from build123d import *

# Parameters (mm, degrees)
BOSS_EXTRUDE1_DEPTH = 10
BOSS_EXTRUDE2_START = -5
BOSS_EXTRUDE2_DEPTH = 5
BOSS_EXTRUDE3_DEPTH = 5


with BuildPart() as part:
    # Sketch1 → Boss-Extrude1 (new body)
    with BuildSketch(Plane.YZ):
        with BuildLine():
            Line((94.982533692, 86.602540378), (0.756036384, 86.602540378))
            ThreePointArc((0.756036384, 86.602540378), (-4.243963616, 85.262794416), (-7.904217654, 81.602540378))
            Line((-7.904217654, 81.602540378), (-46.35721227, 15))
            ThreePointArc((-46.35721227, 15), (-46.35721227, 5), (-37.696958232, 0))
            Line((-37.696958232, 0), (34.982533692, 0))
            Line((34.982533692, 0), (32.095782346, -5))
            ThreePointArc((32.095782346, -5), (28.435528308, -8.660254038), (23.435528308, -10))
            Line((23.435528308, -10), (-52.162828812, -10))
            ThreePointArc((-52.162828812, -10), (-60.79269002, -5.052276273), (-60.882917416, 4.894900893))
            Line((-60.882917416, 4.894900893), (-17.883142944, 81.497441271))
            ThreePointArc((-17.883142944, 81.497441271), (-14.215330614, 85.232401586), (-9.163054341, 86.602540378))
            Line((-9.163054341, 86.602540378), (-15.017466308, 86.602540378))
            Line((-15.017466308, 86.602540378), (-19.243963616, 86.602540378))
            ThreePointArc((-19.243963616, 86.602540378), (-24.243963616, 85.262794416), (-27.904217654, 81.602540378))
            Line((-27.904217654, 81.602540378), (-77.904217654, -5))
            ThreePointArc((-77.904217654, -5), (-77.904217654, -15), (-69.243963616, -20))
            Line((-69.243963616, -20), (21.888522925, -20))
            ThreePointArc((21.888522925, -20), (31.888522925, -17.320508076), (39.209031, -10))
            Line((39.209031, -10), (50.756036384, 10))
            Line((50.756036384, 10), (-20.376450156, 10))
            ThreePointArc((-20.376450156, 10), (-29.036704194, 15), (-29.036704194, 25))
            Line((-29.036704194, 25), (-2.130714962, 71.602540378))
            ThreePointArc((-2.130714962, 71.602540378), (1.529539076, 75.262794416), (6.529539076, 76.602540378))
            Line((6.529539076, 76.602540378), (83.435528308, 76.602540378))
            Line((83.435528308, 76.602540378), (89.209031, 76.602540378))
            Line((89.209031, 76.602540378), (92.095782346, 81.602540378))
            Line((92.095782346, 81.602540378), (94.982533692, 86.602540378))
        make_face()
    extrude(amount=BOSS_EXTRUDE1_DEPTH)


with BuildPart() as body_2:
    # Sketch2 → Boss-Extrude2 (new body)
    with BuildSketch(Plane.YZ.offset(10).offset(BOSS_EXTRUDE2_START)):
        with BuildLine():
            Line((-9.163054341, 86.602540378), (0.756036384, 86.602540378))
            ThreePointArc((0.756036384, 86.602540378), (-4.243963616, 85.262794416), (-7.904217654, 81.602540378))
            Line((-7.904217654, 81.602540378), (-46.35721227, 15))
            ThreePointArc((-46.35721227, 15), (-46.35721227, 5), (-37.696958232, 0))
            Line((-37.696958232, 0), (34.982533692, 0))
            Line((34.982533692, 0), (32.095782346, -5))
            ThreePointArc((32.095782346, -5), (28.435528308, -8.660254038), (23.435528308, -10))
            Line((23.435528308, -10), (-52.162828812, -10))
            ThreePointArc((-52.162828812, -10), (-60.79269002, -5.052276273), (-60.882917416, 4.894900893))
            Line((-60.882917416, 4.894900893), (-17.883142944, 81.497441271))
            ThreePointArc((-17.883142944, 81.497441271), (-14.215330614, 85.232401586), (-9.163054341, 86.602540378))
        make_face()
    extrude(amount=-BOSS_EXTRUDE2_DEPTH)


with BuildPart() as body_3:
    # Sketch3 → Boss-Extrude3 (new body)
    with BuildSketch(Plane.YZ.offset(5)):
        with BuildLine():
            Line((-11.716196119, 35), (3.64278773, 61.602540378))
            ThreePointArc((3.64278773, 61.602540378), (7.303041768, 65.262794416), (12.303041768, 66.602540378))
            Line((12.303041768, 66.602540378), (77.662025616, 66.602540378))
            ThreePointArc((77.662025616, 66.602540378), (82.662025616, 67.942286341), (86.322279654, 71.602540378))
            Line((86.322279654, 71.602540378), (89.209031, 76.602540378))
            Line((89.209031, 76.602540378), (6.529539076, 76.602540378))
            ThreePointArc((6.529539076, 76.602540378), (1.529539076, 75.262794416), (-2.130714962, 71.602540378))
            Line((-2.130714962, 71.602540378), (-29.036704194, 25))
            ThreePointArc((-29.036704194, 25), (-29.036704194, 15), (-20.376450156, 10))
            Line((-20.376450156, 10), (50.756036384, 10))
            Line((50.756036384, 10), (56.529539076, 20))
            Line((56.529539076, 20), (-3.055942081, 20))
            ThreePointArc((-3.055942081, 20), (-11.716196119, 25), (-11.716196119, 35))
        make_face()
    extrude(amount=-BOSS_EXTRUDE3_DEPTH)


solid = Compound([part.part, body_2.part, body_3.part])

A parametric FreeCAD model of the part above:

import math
import FreeCAD as App
import Part
import Sketcher
Q = App.Units.Quantity

doc = App.newDocument("Part")
params = doc.addObject("Spreadsheet::Sheet", "Params")
for row, (alias, value) in enumerate([
    ("sketch1_radius", "10 mm"),
    ("sketch1_length", "100 mm"),
    ("pad1_length", "10 mm"),
    ("sketch2_radius", "10 mm"),
    ("pad2_length", "5 mm"),
    ("sketch3_radius", "10 mm"),
    ("pad3_length", "5 mm"),
], start=1):
    params.set(f"A{row}", alias)
    params.set(f"B{row}", "=" + value)
    params.setAlias(f"B{row}", alias)

body = doc.addObject("PartDesign::Body", "Body")

# Sketch on YZ plane
sketch1 = doc.addObject("Sketcher::SketchObject", "Sketch")
body.addObject(sketch1)
sketch1.AttachmentSupport = (doc.YZ_Plane, [""])
sketch1.MapMode = "FlatFace"
sketch1.addGeometry([
    Part.LineSegment(App.Vector(95, 87, 0), App.Vector(1, 87, 0)),  # 0
    Part.ArcOfCircle(Part.Circle(App.Vector(1, 77, 0), App.Vector(0, 0, 1), 10), math.radians(90), math.radians(150)),  # 1
    Part.LineSegment(App.Vector(-8, 82, 0), App.Vector(-46, 15, 0)),  # 2
    Part.ArcOfCircle(Part.Circle(App.Vector(-38, 10, 0), App.Vector(0, 0, 1), 10), math.radians(150), math.radians(270)),  # 3
    Part.LineSegment(App.Vector(-38, 0, 0), App.Vector(35, 0, 0)),  # 4
    Part.LineSegment(App.Vector(35, 0, 0), App.Vector(32, -5, 0)),  # 5
    Part.ArcOfCircle(Part.Circle(App.Vector(23, 0, 0), App.Vector(0, 0, 1), 10), math.radians(-90), math.radians(-30)),  # 6
    Part.LineSegment(App.Vector(23, -10, 0), App.Vector(-52, -10, 0)),  # 7
    Part.ArcOfCircle(Part.Circle(App.Vector(-52, 0, 0), App.Vector(0, 0, 1), 10), math.radians(151), math.radians(270)),  # 8
    Part.LineSegment(App.Vector(-61, 5, 0), App.Vector(-18, 81, 0)),  # 9
    Part.ArcOfCircle(Part.Circle(App.Vector(-9, 77, 0), App.Vector(0, 0, 1), 10), math.radians(90), math.radians(151)),  # 10
    Part.LineSegment(App.Vector(-9, 87, 0), App.Vector(-19, 87, 0)),  # 11
    Part.ArcOfCircle(Part.Circle(App.Vector(-19, 77, 0), App.Vector(0, 0, 1), 10), math.radians(90), math.radians(150)),  # 12
    Part.LineSegment(App.Vector(-28, 82, 0), App.Vector(-78, -5, 0)),  # 13
    Part.ArcOfCircle(Part.Circle(App.Vector(-69, -10, 0), App.Vector(0, 0, 1), 10), math.radians(150), math.radians(270)),  # 14
    Part.LineSegment(App.Vector(-69, -20, 0), App.Vector(22, -20, 0)),  # 15
    Part.ArcOfCircle(Part.Circle(App.Vector(22, 0, 0), App.Vector(0, 0, 1), 20), math.radians(-90), math.radians(-30)),  # 16
    Part.LineSegment(App.Vector(39, -10, 0), App.Vector(51, 10, 0)),  # 17
    Part.LineSegment(App.Vector(51, 10, 0), App.Vector(-20, 10, 0)),  # 18
    Part.ArcOfCircle(Part.Circle(App.Vector(-20, 20, 0), App.Vector(0, 0, 1), 10), math.radians(150), math.radians(270)),  # 19
    Part.LineSegment(App.Vector(-29, 25, 0), App.Vector(-2, 72, 0)),  # 20
    Part.ArcOfCircle(Part.Circle(App.Vector(7, 67, 0), App.Vector(0, 0, 1), 10), math.radians(90), math.radians(150)),  # 21
    Part.LineSegment(App.Vector(7, 77, 0), App.Vector(89, 77, 0)),  # 22
    Part.LineSegment(App.Vector(89, 77, 0), App.Vector(95, 87, 0)),  # 23
], False)
sketch1.addConstraint([
    Sketcher.Constraint("Tangent", 0, 2, 1, 1),
    Sketcher.Constraint("Tangent", 1, 2, 2, 1),
    Sketcher.Constraint("Tangent", 2, 2, 3, 1),
    Sketcher.Constraint("Tangent", 3, 2, 4, 1),
    Sketcher.Constraint("Coincident", 4, 2, 5, 1),
    Sketcher.Constraint("Tangent", 5, 2, 6, 2),
    Sketcher.Constraint("Tangent", 6, 1, 7, 1),
    Sketcher.Constraint("Tangent", 7, 2, 8, 2),
    Sketcher.Constraint("Tangent", 8, 1, 9, 1),
    Sketcher.Constraint("Tangent", 9, 2, 10, 2),
    Sketcher.Constraint("Tangent", 10, 1, 11, 1),
    Sketcher.Constraint("Tangent", 11, 2, 12, 1),
    Sketcher.Constraint("Tangent", 12, 2, 13, 1),
    Sketcher.Constraint("Tangent", 13, 2, 14, 1),
    Sketcher.Constraint("Tangent", 14, 2, 15, 1),
    Sketcher.Constraint("Tangent", 15, 2, 16, 1),
    Sketcher.Constraint("Tangent", 16, 2, 17, 1),
    Sketcher.Constraint("Coincident", 17, 2, 18, 1),
    Sketcher.Constraint("Tangent", 18, 2, 19, 2),
    Sketcher.Constraint("Tangent", 19, 1, 20, 1),
    Sketcher.Constraint("Tangent", 20, 2, 21, 2),
    Sketcher.Constraint("Tangent", 21, 1, 22, 1),
    Sketcher.Constraint("Coincident", 22, 2, 23, 1),
    Sketcher.Constraint("Coincident", 23, 2, 0, 1),
    Sketcher.Constraint("Horizontal", 0),
    Sketcher.Constraint("Horizontal", 4),
    Sketcher.Constraint("Horizontal", 7),
    Sketcher.Constraint("Horizontal", 11),
    Sketcher.Constraint("Horizontal", 15),
    Sketcher.Constraint("Horizontal", 18),
    Sketcher.Constraint("Horizontal", 22),
    Sketcher.Constraint("Equal", 1, 3),
    Sketcher.Constraint("Equal", 3, 6),
    Sketcher.Constraint("Equal", 6, 8),
    Sketcher.Constraint("Equal", 8, 10),
    Sketcher.Constraint("Equal", 10, 12),
    Sketcher.Constraint("Equal", 12, 14),
    Sketcher.Constraint("Equal", 14, 19),
    Sketcher.Constraint("Equal", 19, 21),
    Sketcher.Constraint("PointOnObject", 6, 3, -1),
    Sketcher.Constraint("PointOnObject", 16, 3, -1),
    Sketcher.Constraint("PointOnObject", 3, 2, -1),
    Sketcher.Constraint("Parallel", 2, 5),
    Sketcher.Constraint("Parallel", 5, 13),
    Sketcher.Constraint("Parallel", 13, 17),
    Sketcher.Constraint("Parallel", 17, 20),
    Sketcher.Constraint("Parallel", 20, 23),
    Sketcher.Constraint("Horizontal", 1, 3, 10, 3),
    Sketcher.Constraint("Horizontal", 14, 3, 6, 1),
    Sketcher.Constraint("Horizontal", 5, 2, 13, 2),
    Sketcher.Constraint("Horizontal", 3, 3, 17, 2),
    Sketcher.Constraint("Horizontal", 12, 3, 21, 1),
    Sketcher.Constraint("Radius", 1, Q("10 mm")),
    Sketcher.Constraint("Distance", 13, Q("100 mm")),
    Sketcher.Constraint("DistanceX", 12, 3, 1, 3, Q("20 mm")),
    Sketcher.Constraint("DistanceX", 4, 1, 4, 2, Q("72.679492 mm")),
    Sketcher.Constraint("DistanceX", 11, 2, 11, 1, Q("10.080909 mm")),
    Sketcher.Constraint("DistanceX", 22, 1, 22, 2, Q("82.679492 mm")),
    Sketcher.Constraint("DistanceY", -1, 1, 8, 1, Q("4.894901 mm")),
    Sketcher.Constraint("DistanceX", 0, 2, 0, 1, Q("94.226497 mm")),
    Sketcher.Constraint("DistanceX", 15, 1, 15, 2, Q("91.132487 mm")),
    Sketcher.Constraint("DistanceX", 3, 3, -1, 1, Q("37.696958 mm")),
])
sketch1.setExpression("Constraints[52]", "Params.sketch1_radius")
sketch1.setExpression("Constraints[53]", "Params.sketch1_length")
pad1 = doc.addObject("PartDesign::Pad", "Pad")
body.addObject(pad1)
pad1.Profile = sketch1
pad1.setExpression("Length", "Params.pad1_length")
body2 = doc.addObject("PartDesign::Body", "Body001")

# Sketch on YZ plane
sketch2 = doc.addObject("Sketcher::SketchObject", "Sketch001")
body2.addObject(sketch2)
sketch2.AttachmentSupport = (doc.getObject("YZ_Plane001"), [""])
sketch2.MapMode = "FlatFace"
sketch2.AttachmentOffset = App.Placement(App.Vector(0, 0, 5), App.Rotation())
sketch2.addGeometry([
    Part.LineSegment(App.Vector(1, 87, 0), App.Vector(-9, 87, 0)),  # 0
    Part.ArcOfCircle(Part.Circle(App.Vector(-9, 77, 0), App.Vector(0, 0, 1), 10), math.radians(90), math.radians(151)),  # 1
    Part.LineSegment(App.Vector(-18, 81, 0), App.Vector(-61, 5, 0)),  # 2
    Part.ArcOfCircle(Part.Circle(App.Vector(-52, 0, 0), App.Vector(0, 0, 1), 10), math.radians(151), math.radians(270)),  # 3
    Part.LineSegment(App.Vector(-52, -10, 0), App.Vector(23, -10, 0)),  # 4
    Part.ArcOfCircle(Part.Circle(App.Vector(23, 0, 0), App.Vector(0, 0, 1), 10), math.radians(-90), math.radians(-30)),  # 5
    Part.LineSegment(App.Vector(32, -5, 0), App.Vector(35, 0, 0)),  # 6
    Part.LineSegment(App.Vector(35, 0, 0), App.Vector(-38, 0, 0)),  # 7
    Part.ArcOfCircle(Part.Circle(App.Vector(-38, 10, 0), App.Vector(0, 0, 1), 10), math.radians(150), math.radians(270)),  # 8
    Part.LineSegment(App.Vector(-46, 15, 0), App.Vector(-8, 82, 0)),  # 9
    Part.ArcOfCircle(Part.Circle(App.Vector(1, 77, 0), App.Vector(0, 0, 1), 10), math.radians(90), math.radians(150)),  # 10
], False)
sketch2.addConstraint([
    Sketcher.Constraint("Tangent", 0, 2, 1, 1),
    Sketcher.Constraint("Tangent", 1, 2, 2, 1),
    Sketcher.Constraint("Tangent", 2, 2, 3, 1),
    Sketcher.Constraint("Tangent", 3, 2, 4, 1),
    Sketcher.Constraint("Tangent", 4, 2, 5, 1),
    Sketcher.Constraint("Tangent", 5, 2, 6, 1),
    Sketcher.Constraint("Coincident", 6, 2, 7, 1),
    Sketcher.Constraint("Tangent", 7, 2, 8, 2),
    Sketcher.Constraint("Tangent", 8, 1, 9, 1),
    Sketcher.Constraint("Tangent", 9, 2, 10, 2),
    Sketcher.Constraint("Tangent", 10, 1, 0, 1),
    Sketcher.Constraint("Horizontal", 0),
    Sketcher.Constraint("Horizontal", 4),
    Sketcher.Constraint("Horizontal", 7),
    Sketcher.Constraint("Equal", 1, 3),
    Sketcher.Constraint("Equal", 3, 5),
    Sketcher.Constraint("Equal", 5, 8),
    Sketcher.Constraint("Equal", 8, 10),
    Sketcher.Constraint("PointOnObject", 3, 3, -1),
    Sketcher.Constraint("PointOnObject", 6, 2, -1),
    Sketcher.Constraint("Parallel", 6, 9),
    Sketcher.Constraint("Radius", 1, Q("10 mm")),
    Sketcher.Constraint("Angle", 6, Q("60 deg")),
    Sketcher.Constraint("DistanceX", 0, 2, 0, 1, Q("9.919091 mm")),
    Sketcher.Constraint("DistanceX", 7, 2, 7, 1, Q("72.679492 mm")),
    Sketcher.Constraint("DistanceY", -1, 1, 2, 2, Q("4.894901 mm")),
    Sketcher.Constraint("Distance", 9, Q("76.905989 mm")),
    Sketcher.Constraint("DistanceX", 3, 3, -1, 1, Q("52.162829 mm")),
])
sketch2.setExpression("Constraints[21]", "Params.sketch2_radius")
pad2 = doc.addObject("PartDesign::Pad", "Pad001")
body2.addObject(pad2)
pad2.Profile = sketch2
pad2.setExpression("Length", "Params.pad2_length")
pad2.Reversed = True
body3 = doc.addObject("PartDesign::Body", "Body002")

# Sketch on YZ plane
sketch3 = doc.addObject("Sketcher::SketchObject", "Sketch002")
body3.addObject(sketch3)
sketch3.AttachmentSupport = (doc.getObject("YZ_Plane002"), [""])
sketch3.MapMode = "FlatFace"
sketch3.AttachmentOffset = App.Placement(App.Vector(0, 0, 5), App.Rotation())
sketch3.addGeometry([
    Part.LineSegment(App.Vector(-12, 35, 0), App.Vector(4, 62, 0)),  # 0
    Part.ArcOfCircle(Part.Circle(App.Vector(12, 57, 0), App.Vector(0, 0, 1), 10), math.radians(90), math.radians(150)),  # 1
    Part.LineSegment(App.Vector(12, 67, 0), App.Vector(78, 67, 0)),  # 2
    Part.ArcOfCircle(Part.Circle(App.Vector(78, 77, 0), App.Vector(0, 0, 1), 10), math.radians(-90), math.radians(-30)),  # 3
    Part.LineSegment(App.Vector(86, 72, 0), App.Vector(89, 77, 0)),  # 4
    Part.LineSegment(App.Vector(89, 77, 0), App.Vector(7, 77, 0)),  # 5
    Part.ArcOfCircle(Part.Circle(App.Vector(7, 67, 0), App.Vector(0, 0, 1), 10), math.radians(90), math.radians(150)),  # 6
    Part.LineSegment(App.Vector(-2, 72, 0), App.Vector(-29, 25, 0)),  # 7
    Part.ArcOfCircle(Part.Circle(App.Vector(-20, 20, 0), App.Vector(0, 0, 1), 10), math.radians(150), math.radians(270)),  # 8
    Part.LineSegment(App.Vector(-20, 10, 0), App.Vector(51, 10, 0)),  # 9
    Part.LineSegment(App.Vector(51, 10, 0), App.Vector(57, 20, 0)),  # 10
    Part.LineSegment(App.Vector(57, 20, 0), App.Vector(-3, 20, 0)),  # 11
    Part.ArcOfCircle(Part.Circle(App.Vector(-3, 30, 0), App.Vector(0, 0, 1), 10), math.radians(150), math.radians(270)),  # 12
], False)
sketch3.addConstraint([
    Sketcher.Constraint("Tangent", 0, 2, 1, 2),
    Sketcher.Constraint("Tangent", 1, 1, 2, 1),
    Sketcher.Constraint("Tangent", 2, 2, 3, 1),
    Sketcher.Constraint("Tangent", 3, 2, 4, 1),
    Sketcher.Constraint("Coincident", 4, 2, 5, 1),
    Sketcher.Constraint("Tangent", 5, 2, 6, 1),
    Sketcher.Constraint("Tangent", 6, 2, 7, 1),
    Sketcher.Constraint("Tangent", 7, 2, 8, 1),
    Sketcher.Constraint("Tangent", 8, 2, 9, 1),
    Sketcher.Constraint("Coincident", 9, 2, 10, 1),
    Sketcher.Constraint("Coincident", 10, 2, 11, 1),
    Sketcher.Constraint("Tangent", 11, 2, 12, 2),
    Sketcher.Constraint("Tangent", 12, 1, 0, 1),
    Sketcher.Constraint("Horizontal", 2),
    Sketcher.Constraint("Horizontal", 5),
    Sketcher.Constraint("Horizontal", 9),
    Sketcher.Constraint("Horizontal", 11),
    Sketcher.Constraint("Equal", 1, 3),
    Sketcher.Constraint("Equal", 3, 6),
    Sketcher.Constraint("Equal", 6, 8),
    Sketcher.Constraint("Equal", 8, 12),
    Sketcher.Constraint("Parallel", 0, 4),
    Sketcher.Constraint("Parallel", 4, 7),
    Sketcher.Constraint("Parallel", 7, 10),
    Sketcher.Constraint("Horizontal", 6, 3, 1, 1),
    Sketcher.Constraint("Horizontal", 3, 2, 6, 2),
    Sketcher.Constraint("Horizontal", 8, 3, 10, 2),
    Sketcher.Constraint("Radius", 1, Q("10 mm")),
    Sketcher.Constraint("DistanceY", -1, 1, 8, 3, Q("20 mm")),
    Sketcher.Constraint("DistanceX", 5, 2, 5, 1, Q("82.679492 mm")),
    Sketcher.Constraint("DistanceX", 11, 2, 11, 1, Q("59.585481 mm")),
    Sketcher.Constraint("Distance", 7, Q("53.811978 mm")),
    Sketcher.Constraint("DistanceX", 2, 1, 2, 2, Q("65.358984 mm")),
    Sketcher.Constraint("DistanceX", -1, 1, 1, 3, Q("12.303042 mm")),
])
sketch3.setExpression("Constraints[27]", "Params.sketch3_radius")
pad3 = doc.addObject("PartDesign::Pad", "Pad002")
body3.addObject(pad3)
pad3.Profile = sketch3
pad3.setExpression("Length", "Params.pad3_length")
pad3.Reversed = True

doc.recompute()
